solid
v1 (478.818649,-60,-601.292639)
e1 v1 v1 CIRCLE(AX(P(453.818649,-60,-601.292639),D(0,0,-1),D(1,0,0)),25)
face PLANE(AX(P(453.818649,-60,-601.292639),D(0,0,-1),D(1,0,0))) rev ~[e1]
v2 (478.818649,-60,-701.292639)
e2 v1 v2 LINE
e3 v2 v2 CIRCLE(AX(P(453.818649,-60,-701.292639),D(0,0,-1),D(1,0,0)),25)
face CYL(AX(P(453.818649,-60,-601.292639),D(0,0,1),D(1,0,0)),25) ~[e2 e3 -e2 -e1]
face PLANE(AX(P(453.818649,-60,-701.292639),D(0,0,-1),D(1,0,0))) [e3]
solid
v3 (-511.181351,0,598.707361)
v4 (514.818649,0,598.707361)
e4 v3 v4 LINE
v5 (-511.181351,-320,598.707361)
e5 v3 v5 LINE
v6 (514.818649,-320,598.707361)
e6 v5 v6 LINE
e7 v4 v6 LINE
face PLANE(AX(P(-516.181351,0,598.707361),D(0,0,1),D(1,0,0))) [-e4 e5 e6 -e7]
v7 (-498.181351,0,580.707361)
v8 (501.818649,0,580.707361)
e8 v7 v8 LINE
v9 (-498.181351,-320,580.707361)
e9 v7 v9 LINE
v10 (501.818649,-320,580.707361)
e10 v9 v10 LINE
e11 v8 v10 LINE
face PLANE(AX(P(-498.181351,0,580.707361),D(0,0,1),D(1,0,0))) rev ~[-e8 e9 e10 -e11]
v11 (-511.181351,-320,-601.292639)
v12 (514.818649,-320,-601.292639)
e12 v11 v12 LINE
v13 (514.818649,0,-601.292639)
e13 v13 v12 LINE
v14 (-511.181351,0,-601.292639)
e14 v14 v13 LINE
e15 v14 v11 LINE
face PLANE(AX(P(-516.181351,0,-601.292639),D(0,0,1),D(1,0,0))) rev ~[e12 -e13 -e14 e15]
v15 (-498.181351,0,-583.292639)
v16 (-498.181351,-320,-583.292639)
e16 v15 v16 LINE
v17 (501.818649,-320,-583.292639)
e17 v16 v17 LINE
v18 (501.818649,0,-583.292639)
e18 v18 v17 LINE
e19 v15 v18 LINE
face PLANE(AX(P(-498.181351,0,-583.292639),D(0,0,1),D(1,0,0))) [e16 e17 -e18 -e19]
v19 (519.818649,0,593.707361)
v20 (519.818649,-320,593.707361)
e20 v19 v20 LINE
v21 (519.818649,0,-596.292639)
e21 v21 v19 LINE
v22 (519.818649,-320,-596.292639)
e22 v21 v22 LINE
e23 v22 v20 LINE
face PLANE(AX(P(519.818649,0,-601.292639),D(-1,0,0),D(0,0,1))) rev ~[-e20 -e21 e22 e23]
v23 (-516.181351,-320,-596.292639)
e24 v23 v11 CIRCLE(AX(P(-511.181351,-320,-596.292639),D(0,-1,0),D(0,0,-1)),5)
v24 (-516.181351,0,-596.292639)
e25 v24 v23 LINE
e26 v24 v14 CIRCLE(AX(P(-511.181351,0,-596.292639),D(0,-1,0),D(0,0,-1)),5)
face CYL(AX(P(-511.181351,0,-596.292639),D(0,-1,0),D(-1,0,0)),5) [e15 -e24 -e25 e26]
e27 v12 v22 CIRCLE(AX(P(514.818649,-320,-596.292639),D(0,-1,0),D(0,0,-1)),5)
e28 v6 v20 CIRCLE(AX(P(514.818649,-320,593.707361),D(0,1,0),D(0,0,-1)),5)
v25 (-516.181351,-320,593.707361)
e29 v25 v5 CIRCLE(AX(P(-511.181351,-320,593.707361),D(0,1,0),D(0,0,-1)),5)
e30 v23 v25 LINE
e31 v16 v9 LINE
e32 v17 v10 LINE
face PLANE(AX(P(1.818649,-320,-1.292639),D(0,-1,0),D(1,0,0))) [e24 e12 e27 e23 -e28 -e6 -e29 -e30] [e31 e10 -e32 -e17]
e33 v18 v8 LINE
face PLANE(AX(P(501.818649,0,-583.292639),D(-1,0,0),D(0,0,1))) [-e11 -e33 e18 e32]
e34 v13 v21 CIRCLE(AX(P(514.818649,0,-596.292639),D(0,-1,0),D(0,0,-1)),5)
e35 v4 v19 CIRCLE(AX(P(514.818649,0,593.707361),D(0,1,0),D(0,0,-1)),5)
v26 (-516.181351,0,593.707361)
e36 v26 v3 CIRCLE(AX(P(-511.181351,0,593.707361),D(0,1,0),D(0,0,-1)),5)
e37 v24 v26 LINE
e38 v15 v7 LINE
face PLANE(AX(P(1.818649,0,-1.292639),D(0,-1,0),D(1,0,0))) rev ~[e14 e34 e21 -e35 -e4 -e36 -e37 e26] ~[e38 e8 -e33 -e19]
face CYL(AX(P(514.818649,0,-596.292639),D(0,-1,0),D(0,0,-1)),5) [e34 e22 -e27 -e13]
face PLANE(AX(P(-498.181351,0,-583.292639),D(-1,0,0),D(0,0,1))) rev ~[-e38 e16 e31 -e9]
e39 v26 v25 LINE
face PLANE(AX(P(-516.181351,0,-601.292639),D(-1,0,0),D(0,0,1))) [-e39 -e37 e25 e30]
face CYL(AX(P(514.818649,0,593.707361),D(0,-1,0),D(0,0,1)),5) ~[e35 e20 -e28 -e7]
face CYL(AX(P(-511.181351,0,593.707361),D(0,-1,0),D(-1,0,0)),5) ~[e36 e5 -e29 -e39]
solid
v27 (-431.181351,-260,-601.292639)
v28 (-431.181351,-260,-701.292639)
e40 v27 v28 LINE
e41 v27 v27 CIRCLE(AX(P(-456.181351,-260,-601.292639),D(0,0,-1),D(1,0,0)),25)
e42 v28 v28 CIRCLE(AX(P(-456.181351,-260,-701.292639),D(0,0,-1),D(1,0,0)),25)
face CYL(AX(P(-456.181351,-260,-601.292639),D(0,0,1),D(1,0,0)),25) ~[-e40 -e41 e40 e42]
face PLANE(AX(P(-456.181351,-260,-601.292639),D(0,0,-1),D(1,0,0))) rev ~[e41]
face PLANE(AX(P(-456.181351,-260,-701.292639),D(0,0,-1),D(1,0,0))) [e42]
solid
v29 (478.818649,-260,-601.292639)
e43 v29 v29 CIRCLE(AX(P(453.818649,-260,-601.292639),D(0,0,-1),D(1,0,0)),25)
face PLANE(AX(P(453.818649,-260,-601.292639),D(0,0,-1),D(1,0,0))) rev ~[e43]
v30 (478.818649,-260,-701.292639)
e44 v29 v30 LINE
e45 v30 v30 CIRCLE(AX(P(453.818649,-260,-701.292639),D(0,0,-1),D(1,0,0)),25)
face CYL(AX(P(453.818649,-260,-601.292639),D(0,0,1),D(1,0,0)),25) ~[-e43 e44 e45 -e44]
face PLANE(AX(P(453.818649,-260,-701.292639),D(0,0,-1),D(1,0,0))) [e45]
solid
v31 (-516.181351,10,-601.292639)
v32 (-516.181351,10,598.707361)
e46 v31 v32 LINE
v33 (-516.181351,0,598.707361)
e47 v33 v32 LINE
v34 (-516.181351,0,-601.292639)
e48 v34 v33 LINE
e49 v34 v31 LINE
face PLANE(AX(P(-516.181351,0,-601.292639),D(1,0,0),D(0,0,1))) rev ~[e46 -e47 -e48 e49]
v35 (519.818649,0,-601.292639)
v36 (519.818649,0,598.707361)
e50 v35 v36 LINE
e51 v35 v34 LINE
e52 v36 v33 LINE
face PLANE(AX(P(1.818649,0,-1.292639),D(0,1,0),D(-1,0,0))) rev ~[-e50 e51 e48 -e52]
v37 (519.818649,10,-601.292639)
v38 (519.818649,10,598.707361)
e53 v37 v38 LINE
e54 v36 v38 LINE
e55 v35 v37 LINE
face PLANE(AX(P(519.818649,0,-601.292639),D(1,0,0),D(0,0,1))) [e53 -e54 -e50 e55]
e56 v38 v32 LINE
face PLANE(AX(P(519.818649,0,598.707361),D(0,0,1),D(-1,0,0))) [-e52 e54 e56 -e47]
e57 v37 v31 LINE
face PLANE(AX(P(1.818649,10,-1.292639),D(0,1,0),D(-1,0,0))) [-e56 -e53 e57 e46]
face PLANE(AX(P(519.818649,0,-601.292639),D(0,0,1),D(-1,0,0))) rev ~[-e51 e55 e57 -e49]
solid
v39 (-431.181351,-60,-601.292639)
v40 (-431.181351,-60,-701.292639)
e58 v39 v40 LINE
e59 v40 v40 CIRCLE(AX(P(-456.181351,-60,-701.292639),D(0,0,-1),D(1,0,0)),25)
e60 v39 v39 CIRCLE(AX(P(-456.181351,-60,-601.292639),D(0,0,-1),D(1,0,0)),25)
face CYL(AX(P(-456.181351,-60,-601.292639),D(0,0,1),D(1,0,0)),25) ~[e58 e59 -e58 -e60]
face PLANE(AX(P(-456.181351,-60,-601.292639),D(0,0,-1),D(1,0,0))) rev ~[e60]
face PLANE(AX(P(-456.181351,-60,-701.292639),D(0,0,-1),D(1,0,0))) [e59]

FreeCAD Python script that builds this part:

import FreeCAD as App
import Part
import Sketcher
Q = App.Units.Quantity


def edges_at(feature, points):
    """Names of the edges that pass closest to the given points."""
    edges = feature.Shape.Edges
    near = lambda p: min(range(len(edges)), key=lambda i: edges[i].distToShape(Part.Vertex(*p))[0])
    return sorted({f"Edge{near(p) + 1}" for p in points})


def add_polygon(sketch, points):
    """Adds a closed chain of lines whose ends are joined by coincident constraints."""
    first, n = sketch.GeometryCount, len(points)
    for a, b in zip(points, points[1:] + points[:1]):
        sketch.addGeometry(Part.LineSegment(App.Vector(*a, 0), App.Vector(*b, 0)), False)
    for i in range(n):
        sketch.addConstraint(Sketcher.Constraint("Coincident", first + i, 2, first + (i + 1) % n, 1))

doc = App.newDocument("Part")
body = doc.addObject("PartDesign::Body", "Body")

# Sketch on XZ plane
sketch1 = body.newObject("Sketcher::SketchObject", "Sketch")
sketch1.AttachmentSupport = (doc.getObject("XZ_Plane"), [""])
sketch1.MapMode = "FlatFace"
add_polygon(sketch1, [(-516.181351, 598.707361), (-516.181351, -601.292639), (519.818649, -601.292639), (519.818649, 598.707361)])  # lines 0-3
add_polygon(sketch1, [(501.818649, -583.292639), (-498.181351, -583.292639), (-498.181351, 580.707361), (501.818649, 580.707361)])  # lines 4-7
sketch1.addConstraint(Sketcher.Constraint("Vertical", 0))
sketch1.addConstraint(Sketcher.Constraint("Horizontal", 1))
sketch1.addConstraint(Sketcher.Constraint("Vertical", 2))
sketch1.addConstraint(Sketcher.Constraint("Horizontal", 3))
sketch1.addConstraint(Sketcher.Constraint("Horizontal", 4))
sketch1.addConstraint(Sketcher.Constraint("Vertical", 5))
sketch1.addConstraint(Sketcher.Constraint("Horizontal", 6))
sketch1.addConstraint(Sketcher.Constraint("Vertical", 7))
sketch1.addConstraint(Sketcher.Constraint("DistanceX", 1, 1, 1, 2, Q("1036 mm")))
sketch1.addConstraint(Sketcher.Constraint("DistanceX", 4, 2, 4, 1, Q("1000 mm")))
sketch1.addConstraint(Sketcher.Constraint("DistanceY", 0, 2, 0, 1, Q("1200 mm")))
sketch1.addConstraint(Sketcher.Constraint("DistanceY", 5, 1, 5, 2, Q("1164 mm")))
sketch1.addConstraint(Sketcher.Constraint("DistanceX", 0, 2, 4, 2, Q("18 mm")))
sketch1.addConstraint(Sketcher.Constraint("DistanceY", 0, 2, 4, 2, Q("18 mm")))
sketch1.addConstraint(Sketcher.Constraint("DistanceX", 0, 2, -1, 1, Q("516.181351 mm")))
sketch1.addConstraint(Sketcher.Constraint("DistanceY", 0, 2, -1, 1, Q("601.292639 mm")))
pad1 = body.newObject("PartDesign::Pad", "Pad")
pad1.Profile = sketch1
pad1.Length = 320
doc.recompute()

fillet = body.newObject("PartDesign::Fillet", "Fillet")
fillet.Base = (pad1, edges_at(pad1, [
    (-516.181, -160, 598.707),
    (-516.181, -160, -601.293),
    (519.819, -160, -601.293),
    (519.819, -160, 598.707),
]))
fillet.Radius = 5
body2 = doc.addObject("PartDesign::Body", "Body001")

# Sketch on XZ plane
sketch2 = body2.newObject("Sketcher::SketchObject", "Sketch001")
sketch2.AttachmentSupport = (doc.getObject("XZ_Plane001"), [""])
sketch2.MapMode = "FlatFace"
add_polygon(sketch2, [(519.818649, 598.707361), (519.818649, -601.292639), (-516.181351, -601.292639), (-516.181351, 598.707361)])  # lines 0-3
sketch2.addConstraint(Sketcher.Constraint("Vertical", 0))
sketch2.addConstraint(Sketcher.Constraint("Horizontal", 1))
sketch2.addConstraint(Sketcher.Constraint("Vertical", 2))
sketch2.addConstraint(Sketcher.Constraint("Horizontal", 3))
sketch2.addConstraint(Sketcher.Constraint("DistanceX", 1, 2, 1, 1, Q("1036 mm")))
sketch2.addConstraint(Sketcher.Constraint("DistanceY", 0, 2, 0, 1, Q("1200 mm")))
sketch2.addConstraint(Sketcher.Constraint("DistanceX", -1, 1, 0, 2, Q("519.818649 mm")))
sketch2.addConstraint(Sketcher.Constraint("DistanceY", 0, 2, -1, 1, Q("601.292639 mm")))
pad2 = body2.newObject("PartDesign::Pad", "Pad001")
pad2.Profile = sketch2
pad2.Length = 10
pad2.Reversed = True
body3 = doc.addObject("PartDesign::Body", "Body002")
body3.AllowCompound = True

# Sketch on XY plane
sketch3 = body3.newObject("Sketcher::SketchObject", "Sketch002")
sketch3.AttachmentSupport = (doc.getObject("XY_Plane002"), [""])
sketch3.MapMode = "FlatFace"
sketch3.AttachmentOffset = App.Placement(App.Vector(0, 0, -601.292639), App.Rotation())
sketch3.addGeometry(Part.Circle(App.Vector(-456.181351, -260, 0), App.Vector(0, 0, 1), 25), False)
sketch3.addGeometry(Part.Circle(App.Vector(-456.181351, -60, 0), App.Vector(0, 0, 1), 25), False)
sketch3.addGeometry(Part.Circle(App.Vector(453.818649, -260, 0), App.Vector(0, 0, 1), 25), False)
sketch3.addGeometry(Part.Circle(App.Vector(453.818649, -60, 0), App.Vector(0, 0, 1), 25), False)
sketch3.addConstraint(Sketcher.Constraint("Equal", 0, 1))
sketch3.addConstraint(Sketcher.Constraint("Equal", 1, 2))
sketch3.addConstraint(Sketcher.Constraint("Equal", 2, 3))
sketch3.addConstraint(Sketcher.Constraint("Horizontal", 0, 3, 2, 3))
sketch3.addConstraint(Sketcher.Constraint("Horizontal", 1, 3, 3, 3))
sketch3.addConstraint(Sketcher.Constraint("Vertical", 0, 3, 1, 3))
sketch3.addConstraint(Sketcher.Constraint("Vertical", 2, 3, 3, 3))
sketch3.addConstraint(Sketcher.Constraint("Diameter", 0, Q("50 mm")))
sketch3.addConstraint(Sketcher.Constraint("DistanceY", 0, 3, -1, 1, Q("260 mm")))
sketch3.addConstraint(Sketcher.Constraint("DistanceY", 1, 3, -1, 1, Q("60 mm")))
sketch3.addConstraint(Sketcher.Constraint("DistanceX", 0, 3, 2, 3, Q("910 mm")))
sketch3.addConstraint(Sketcher.Constraint("DistanceX", 0, 3, -1, 1, Q("456.181351 mm")))
pad3 = body3.newObject("PartDesign::Pad", "Pad002")
pad3.Profile = sketch3
pad3.Length = 100
pad3.Reversed = True

doc.recompute()
